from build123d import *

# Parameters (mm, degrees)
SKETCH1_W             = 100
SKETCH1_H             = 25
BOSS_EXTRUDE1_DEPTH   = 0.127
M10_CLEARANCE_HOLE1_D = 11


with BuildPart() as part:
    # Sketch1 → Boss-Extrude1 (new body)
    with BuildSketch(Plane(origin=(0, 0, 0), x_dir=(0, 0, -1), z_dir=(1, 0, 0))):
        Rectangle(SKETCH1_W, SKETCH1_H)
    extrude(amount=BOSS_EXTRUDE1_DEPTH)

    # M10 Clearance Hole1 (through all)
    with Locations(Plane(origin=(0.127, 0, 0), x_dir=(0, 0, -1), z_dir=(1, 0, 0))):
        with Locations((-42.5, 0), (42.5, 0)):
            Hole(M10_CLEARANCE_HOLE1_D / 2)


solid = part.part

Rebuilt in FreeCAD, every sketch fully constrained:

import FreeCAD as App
import Part
import Sketcher
from FreeCAD import Vector


def add_polygon(sketch, points):
    """Adds a closed chain of lines whose ends are joined by coincident constraints."""
    first, n = sketch.GeometryCount, len(points)
    for a, b in zip(points, points[1:] + points[:1]):
        sketch.addGeometry(Part.LineSegment(App.Vector(*a, 0), App.Vector(*b, 0)), False)
    for i in range(n):
        sketch.addConstraint(Sketcher.Constraint("Coincident", first + i, 2, first + (i + 1) % n, 1))

doc = App.newDocument("Part")
body = doc.addObject("PartDesign::Body", "Body")

# Sketch on YZ plane
sketch1 = doc.addObject("Sketcher::SketchObject", "Sketch")
body.addObject(sketch1)
sketch1.AttachmentSupport = (doc.YZ_Plane, [""])
sketch1.MapMode = "FlatFace"
add_polygon(sketch1, [(12.5, 50), (-12.5, 50), (-12.5, -50), (12.5, -50)])  # lines 0-3
sketch1.addConstraint([
    Sketcher.Constraint("Horizontal", 0),
    Sketcher.Constraint("Vertical", 1),
    Sketcher.Constraint("Horizontal", 2),
    Sketcher.Constraint("Vertical", 3),
    Sketcher.Constraint("Symmetric", 0, 2, 2, 2, -1, 1),
    Sketcher.Constraint("DistanceX", 0, 2, 0, 1, 25.0),
    Sketcher.Constraint("DistanceY", 1, 2, 1, 1, 100.0),
])
pad1 = doc.addObject("PartDesign::Pad", "Pad")
body.addObject(pad1)
pad1.Profile = sketch1
pad1.Length = 0.127

# Sketch on YZ plane
sketch2 = doc.addObject("Sketcher::SketchObject", "Sketch001")
body.addObject(sketch2)
sketch2.AttachmentSupport = (doc.YZ_Plane, [""])
sketch2.MapMode = "FlatFace"
sketch2.AttachmentOffset = App.Placement(Vector(0, 0, 0.127), App.Rotation())
sketch2.addGeometry([
    Part.Circle(Vector(0, 42.5, 0), Vector(0, 0, 1), 5.5),
    Part.Circle(Vector(0, -42.5, 0), Vector(0, 0, 1), 5.5),
], False)
sketch2.addConstraint([
    Sketcher.Constraint("Equal", 0, 1),
    Sketcher.Constraint("Symmetric", 0, 3, 1, 3, -1, 1),
    Sketcher.Constraint("PointOnObject", 0, 3, -2),
    Sketcher.Constraint("Diameter", 0, 11.0),
    Sketcher.Constraint("DistanceY", 1, 3, 0, 3, 85.0),
])
doc.recompute()
hole = doc.addObject("PartDesign::Hole", "Hole")
body.addObject(hole)
hole.Profile = sketch2
hole.ThreadType = "None"
hole.Diameter = 11
hole.DepthType = "ThroughAll"

doc.recompute()
